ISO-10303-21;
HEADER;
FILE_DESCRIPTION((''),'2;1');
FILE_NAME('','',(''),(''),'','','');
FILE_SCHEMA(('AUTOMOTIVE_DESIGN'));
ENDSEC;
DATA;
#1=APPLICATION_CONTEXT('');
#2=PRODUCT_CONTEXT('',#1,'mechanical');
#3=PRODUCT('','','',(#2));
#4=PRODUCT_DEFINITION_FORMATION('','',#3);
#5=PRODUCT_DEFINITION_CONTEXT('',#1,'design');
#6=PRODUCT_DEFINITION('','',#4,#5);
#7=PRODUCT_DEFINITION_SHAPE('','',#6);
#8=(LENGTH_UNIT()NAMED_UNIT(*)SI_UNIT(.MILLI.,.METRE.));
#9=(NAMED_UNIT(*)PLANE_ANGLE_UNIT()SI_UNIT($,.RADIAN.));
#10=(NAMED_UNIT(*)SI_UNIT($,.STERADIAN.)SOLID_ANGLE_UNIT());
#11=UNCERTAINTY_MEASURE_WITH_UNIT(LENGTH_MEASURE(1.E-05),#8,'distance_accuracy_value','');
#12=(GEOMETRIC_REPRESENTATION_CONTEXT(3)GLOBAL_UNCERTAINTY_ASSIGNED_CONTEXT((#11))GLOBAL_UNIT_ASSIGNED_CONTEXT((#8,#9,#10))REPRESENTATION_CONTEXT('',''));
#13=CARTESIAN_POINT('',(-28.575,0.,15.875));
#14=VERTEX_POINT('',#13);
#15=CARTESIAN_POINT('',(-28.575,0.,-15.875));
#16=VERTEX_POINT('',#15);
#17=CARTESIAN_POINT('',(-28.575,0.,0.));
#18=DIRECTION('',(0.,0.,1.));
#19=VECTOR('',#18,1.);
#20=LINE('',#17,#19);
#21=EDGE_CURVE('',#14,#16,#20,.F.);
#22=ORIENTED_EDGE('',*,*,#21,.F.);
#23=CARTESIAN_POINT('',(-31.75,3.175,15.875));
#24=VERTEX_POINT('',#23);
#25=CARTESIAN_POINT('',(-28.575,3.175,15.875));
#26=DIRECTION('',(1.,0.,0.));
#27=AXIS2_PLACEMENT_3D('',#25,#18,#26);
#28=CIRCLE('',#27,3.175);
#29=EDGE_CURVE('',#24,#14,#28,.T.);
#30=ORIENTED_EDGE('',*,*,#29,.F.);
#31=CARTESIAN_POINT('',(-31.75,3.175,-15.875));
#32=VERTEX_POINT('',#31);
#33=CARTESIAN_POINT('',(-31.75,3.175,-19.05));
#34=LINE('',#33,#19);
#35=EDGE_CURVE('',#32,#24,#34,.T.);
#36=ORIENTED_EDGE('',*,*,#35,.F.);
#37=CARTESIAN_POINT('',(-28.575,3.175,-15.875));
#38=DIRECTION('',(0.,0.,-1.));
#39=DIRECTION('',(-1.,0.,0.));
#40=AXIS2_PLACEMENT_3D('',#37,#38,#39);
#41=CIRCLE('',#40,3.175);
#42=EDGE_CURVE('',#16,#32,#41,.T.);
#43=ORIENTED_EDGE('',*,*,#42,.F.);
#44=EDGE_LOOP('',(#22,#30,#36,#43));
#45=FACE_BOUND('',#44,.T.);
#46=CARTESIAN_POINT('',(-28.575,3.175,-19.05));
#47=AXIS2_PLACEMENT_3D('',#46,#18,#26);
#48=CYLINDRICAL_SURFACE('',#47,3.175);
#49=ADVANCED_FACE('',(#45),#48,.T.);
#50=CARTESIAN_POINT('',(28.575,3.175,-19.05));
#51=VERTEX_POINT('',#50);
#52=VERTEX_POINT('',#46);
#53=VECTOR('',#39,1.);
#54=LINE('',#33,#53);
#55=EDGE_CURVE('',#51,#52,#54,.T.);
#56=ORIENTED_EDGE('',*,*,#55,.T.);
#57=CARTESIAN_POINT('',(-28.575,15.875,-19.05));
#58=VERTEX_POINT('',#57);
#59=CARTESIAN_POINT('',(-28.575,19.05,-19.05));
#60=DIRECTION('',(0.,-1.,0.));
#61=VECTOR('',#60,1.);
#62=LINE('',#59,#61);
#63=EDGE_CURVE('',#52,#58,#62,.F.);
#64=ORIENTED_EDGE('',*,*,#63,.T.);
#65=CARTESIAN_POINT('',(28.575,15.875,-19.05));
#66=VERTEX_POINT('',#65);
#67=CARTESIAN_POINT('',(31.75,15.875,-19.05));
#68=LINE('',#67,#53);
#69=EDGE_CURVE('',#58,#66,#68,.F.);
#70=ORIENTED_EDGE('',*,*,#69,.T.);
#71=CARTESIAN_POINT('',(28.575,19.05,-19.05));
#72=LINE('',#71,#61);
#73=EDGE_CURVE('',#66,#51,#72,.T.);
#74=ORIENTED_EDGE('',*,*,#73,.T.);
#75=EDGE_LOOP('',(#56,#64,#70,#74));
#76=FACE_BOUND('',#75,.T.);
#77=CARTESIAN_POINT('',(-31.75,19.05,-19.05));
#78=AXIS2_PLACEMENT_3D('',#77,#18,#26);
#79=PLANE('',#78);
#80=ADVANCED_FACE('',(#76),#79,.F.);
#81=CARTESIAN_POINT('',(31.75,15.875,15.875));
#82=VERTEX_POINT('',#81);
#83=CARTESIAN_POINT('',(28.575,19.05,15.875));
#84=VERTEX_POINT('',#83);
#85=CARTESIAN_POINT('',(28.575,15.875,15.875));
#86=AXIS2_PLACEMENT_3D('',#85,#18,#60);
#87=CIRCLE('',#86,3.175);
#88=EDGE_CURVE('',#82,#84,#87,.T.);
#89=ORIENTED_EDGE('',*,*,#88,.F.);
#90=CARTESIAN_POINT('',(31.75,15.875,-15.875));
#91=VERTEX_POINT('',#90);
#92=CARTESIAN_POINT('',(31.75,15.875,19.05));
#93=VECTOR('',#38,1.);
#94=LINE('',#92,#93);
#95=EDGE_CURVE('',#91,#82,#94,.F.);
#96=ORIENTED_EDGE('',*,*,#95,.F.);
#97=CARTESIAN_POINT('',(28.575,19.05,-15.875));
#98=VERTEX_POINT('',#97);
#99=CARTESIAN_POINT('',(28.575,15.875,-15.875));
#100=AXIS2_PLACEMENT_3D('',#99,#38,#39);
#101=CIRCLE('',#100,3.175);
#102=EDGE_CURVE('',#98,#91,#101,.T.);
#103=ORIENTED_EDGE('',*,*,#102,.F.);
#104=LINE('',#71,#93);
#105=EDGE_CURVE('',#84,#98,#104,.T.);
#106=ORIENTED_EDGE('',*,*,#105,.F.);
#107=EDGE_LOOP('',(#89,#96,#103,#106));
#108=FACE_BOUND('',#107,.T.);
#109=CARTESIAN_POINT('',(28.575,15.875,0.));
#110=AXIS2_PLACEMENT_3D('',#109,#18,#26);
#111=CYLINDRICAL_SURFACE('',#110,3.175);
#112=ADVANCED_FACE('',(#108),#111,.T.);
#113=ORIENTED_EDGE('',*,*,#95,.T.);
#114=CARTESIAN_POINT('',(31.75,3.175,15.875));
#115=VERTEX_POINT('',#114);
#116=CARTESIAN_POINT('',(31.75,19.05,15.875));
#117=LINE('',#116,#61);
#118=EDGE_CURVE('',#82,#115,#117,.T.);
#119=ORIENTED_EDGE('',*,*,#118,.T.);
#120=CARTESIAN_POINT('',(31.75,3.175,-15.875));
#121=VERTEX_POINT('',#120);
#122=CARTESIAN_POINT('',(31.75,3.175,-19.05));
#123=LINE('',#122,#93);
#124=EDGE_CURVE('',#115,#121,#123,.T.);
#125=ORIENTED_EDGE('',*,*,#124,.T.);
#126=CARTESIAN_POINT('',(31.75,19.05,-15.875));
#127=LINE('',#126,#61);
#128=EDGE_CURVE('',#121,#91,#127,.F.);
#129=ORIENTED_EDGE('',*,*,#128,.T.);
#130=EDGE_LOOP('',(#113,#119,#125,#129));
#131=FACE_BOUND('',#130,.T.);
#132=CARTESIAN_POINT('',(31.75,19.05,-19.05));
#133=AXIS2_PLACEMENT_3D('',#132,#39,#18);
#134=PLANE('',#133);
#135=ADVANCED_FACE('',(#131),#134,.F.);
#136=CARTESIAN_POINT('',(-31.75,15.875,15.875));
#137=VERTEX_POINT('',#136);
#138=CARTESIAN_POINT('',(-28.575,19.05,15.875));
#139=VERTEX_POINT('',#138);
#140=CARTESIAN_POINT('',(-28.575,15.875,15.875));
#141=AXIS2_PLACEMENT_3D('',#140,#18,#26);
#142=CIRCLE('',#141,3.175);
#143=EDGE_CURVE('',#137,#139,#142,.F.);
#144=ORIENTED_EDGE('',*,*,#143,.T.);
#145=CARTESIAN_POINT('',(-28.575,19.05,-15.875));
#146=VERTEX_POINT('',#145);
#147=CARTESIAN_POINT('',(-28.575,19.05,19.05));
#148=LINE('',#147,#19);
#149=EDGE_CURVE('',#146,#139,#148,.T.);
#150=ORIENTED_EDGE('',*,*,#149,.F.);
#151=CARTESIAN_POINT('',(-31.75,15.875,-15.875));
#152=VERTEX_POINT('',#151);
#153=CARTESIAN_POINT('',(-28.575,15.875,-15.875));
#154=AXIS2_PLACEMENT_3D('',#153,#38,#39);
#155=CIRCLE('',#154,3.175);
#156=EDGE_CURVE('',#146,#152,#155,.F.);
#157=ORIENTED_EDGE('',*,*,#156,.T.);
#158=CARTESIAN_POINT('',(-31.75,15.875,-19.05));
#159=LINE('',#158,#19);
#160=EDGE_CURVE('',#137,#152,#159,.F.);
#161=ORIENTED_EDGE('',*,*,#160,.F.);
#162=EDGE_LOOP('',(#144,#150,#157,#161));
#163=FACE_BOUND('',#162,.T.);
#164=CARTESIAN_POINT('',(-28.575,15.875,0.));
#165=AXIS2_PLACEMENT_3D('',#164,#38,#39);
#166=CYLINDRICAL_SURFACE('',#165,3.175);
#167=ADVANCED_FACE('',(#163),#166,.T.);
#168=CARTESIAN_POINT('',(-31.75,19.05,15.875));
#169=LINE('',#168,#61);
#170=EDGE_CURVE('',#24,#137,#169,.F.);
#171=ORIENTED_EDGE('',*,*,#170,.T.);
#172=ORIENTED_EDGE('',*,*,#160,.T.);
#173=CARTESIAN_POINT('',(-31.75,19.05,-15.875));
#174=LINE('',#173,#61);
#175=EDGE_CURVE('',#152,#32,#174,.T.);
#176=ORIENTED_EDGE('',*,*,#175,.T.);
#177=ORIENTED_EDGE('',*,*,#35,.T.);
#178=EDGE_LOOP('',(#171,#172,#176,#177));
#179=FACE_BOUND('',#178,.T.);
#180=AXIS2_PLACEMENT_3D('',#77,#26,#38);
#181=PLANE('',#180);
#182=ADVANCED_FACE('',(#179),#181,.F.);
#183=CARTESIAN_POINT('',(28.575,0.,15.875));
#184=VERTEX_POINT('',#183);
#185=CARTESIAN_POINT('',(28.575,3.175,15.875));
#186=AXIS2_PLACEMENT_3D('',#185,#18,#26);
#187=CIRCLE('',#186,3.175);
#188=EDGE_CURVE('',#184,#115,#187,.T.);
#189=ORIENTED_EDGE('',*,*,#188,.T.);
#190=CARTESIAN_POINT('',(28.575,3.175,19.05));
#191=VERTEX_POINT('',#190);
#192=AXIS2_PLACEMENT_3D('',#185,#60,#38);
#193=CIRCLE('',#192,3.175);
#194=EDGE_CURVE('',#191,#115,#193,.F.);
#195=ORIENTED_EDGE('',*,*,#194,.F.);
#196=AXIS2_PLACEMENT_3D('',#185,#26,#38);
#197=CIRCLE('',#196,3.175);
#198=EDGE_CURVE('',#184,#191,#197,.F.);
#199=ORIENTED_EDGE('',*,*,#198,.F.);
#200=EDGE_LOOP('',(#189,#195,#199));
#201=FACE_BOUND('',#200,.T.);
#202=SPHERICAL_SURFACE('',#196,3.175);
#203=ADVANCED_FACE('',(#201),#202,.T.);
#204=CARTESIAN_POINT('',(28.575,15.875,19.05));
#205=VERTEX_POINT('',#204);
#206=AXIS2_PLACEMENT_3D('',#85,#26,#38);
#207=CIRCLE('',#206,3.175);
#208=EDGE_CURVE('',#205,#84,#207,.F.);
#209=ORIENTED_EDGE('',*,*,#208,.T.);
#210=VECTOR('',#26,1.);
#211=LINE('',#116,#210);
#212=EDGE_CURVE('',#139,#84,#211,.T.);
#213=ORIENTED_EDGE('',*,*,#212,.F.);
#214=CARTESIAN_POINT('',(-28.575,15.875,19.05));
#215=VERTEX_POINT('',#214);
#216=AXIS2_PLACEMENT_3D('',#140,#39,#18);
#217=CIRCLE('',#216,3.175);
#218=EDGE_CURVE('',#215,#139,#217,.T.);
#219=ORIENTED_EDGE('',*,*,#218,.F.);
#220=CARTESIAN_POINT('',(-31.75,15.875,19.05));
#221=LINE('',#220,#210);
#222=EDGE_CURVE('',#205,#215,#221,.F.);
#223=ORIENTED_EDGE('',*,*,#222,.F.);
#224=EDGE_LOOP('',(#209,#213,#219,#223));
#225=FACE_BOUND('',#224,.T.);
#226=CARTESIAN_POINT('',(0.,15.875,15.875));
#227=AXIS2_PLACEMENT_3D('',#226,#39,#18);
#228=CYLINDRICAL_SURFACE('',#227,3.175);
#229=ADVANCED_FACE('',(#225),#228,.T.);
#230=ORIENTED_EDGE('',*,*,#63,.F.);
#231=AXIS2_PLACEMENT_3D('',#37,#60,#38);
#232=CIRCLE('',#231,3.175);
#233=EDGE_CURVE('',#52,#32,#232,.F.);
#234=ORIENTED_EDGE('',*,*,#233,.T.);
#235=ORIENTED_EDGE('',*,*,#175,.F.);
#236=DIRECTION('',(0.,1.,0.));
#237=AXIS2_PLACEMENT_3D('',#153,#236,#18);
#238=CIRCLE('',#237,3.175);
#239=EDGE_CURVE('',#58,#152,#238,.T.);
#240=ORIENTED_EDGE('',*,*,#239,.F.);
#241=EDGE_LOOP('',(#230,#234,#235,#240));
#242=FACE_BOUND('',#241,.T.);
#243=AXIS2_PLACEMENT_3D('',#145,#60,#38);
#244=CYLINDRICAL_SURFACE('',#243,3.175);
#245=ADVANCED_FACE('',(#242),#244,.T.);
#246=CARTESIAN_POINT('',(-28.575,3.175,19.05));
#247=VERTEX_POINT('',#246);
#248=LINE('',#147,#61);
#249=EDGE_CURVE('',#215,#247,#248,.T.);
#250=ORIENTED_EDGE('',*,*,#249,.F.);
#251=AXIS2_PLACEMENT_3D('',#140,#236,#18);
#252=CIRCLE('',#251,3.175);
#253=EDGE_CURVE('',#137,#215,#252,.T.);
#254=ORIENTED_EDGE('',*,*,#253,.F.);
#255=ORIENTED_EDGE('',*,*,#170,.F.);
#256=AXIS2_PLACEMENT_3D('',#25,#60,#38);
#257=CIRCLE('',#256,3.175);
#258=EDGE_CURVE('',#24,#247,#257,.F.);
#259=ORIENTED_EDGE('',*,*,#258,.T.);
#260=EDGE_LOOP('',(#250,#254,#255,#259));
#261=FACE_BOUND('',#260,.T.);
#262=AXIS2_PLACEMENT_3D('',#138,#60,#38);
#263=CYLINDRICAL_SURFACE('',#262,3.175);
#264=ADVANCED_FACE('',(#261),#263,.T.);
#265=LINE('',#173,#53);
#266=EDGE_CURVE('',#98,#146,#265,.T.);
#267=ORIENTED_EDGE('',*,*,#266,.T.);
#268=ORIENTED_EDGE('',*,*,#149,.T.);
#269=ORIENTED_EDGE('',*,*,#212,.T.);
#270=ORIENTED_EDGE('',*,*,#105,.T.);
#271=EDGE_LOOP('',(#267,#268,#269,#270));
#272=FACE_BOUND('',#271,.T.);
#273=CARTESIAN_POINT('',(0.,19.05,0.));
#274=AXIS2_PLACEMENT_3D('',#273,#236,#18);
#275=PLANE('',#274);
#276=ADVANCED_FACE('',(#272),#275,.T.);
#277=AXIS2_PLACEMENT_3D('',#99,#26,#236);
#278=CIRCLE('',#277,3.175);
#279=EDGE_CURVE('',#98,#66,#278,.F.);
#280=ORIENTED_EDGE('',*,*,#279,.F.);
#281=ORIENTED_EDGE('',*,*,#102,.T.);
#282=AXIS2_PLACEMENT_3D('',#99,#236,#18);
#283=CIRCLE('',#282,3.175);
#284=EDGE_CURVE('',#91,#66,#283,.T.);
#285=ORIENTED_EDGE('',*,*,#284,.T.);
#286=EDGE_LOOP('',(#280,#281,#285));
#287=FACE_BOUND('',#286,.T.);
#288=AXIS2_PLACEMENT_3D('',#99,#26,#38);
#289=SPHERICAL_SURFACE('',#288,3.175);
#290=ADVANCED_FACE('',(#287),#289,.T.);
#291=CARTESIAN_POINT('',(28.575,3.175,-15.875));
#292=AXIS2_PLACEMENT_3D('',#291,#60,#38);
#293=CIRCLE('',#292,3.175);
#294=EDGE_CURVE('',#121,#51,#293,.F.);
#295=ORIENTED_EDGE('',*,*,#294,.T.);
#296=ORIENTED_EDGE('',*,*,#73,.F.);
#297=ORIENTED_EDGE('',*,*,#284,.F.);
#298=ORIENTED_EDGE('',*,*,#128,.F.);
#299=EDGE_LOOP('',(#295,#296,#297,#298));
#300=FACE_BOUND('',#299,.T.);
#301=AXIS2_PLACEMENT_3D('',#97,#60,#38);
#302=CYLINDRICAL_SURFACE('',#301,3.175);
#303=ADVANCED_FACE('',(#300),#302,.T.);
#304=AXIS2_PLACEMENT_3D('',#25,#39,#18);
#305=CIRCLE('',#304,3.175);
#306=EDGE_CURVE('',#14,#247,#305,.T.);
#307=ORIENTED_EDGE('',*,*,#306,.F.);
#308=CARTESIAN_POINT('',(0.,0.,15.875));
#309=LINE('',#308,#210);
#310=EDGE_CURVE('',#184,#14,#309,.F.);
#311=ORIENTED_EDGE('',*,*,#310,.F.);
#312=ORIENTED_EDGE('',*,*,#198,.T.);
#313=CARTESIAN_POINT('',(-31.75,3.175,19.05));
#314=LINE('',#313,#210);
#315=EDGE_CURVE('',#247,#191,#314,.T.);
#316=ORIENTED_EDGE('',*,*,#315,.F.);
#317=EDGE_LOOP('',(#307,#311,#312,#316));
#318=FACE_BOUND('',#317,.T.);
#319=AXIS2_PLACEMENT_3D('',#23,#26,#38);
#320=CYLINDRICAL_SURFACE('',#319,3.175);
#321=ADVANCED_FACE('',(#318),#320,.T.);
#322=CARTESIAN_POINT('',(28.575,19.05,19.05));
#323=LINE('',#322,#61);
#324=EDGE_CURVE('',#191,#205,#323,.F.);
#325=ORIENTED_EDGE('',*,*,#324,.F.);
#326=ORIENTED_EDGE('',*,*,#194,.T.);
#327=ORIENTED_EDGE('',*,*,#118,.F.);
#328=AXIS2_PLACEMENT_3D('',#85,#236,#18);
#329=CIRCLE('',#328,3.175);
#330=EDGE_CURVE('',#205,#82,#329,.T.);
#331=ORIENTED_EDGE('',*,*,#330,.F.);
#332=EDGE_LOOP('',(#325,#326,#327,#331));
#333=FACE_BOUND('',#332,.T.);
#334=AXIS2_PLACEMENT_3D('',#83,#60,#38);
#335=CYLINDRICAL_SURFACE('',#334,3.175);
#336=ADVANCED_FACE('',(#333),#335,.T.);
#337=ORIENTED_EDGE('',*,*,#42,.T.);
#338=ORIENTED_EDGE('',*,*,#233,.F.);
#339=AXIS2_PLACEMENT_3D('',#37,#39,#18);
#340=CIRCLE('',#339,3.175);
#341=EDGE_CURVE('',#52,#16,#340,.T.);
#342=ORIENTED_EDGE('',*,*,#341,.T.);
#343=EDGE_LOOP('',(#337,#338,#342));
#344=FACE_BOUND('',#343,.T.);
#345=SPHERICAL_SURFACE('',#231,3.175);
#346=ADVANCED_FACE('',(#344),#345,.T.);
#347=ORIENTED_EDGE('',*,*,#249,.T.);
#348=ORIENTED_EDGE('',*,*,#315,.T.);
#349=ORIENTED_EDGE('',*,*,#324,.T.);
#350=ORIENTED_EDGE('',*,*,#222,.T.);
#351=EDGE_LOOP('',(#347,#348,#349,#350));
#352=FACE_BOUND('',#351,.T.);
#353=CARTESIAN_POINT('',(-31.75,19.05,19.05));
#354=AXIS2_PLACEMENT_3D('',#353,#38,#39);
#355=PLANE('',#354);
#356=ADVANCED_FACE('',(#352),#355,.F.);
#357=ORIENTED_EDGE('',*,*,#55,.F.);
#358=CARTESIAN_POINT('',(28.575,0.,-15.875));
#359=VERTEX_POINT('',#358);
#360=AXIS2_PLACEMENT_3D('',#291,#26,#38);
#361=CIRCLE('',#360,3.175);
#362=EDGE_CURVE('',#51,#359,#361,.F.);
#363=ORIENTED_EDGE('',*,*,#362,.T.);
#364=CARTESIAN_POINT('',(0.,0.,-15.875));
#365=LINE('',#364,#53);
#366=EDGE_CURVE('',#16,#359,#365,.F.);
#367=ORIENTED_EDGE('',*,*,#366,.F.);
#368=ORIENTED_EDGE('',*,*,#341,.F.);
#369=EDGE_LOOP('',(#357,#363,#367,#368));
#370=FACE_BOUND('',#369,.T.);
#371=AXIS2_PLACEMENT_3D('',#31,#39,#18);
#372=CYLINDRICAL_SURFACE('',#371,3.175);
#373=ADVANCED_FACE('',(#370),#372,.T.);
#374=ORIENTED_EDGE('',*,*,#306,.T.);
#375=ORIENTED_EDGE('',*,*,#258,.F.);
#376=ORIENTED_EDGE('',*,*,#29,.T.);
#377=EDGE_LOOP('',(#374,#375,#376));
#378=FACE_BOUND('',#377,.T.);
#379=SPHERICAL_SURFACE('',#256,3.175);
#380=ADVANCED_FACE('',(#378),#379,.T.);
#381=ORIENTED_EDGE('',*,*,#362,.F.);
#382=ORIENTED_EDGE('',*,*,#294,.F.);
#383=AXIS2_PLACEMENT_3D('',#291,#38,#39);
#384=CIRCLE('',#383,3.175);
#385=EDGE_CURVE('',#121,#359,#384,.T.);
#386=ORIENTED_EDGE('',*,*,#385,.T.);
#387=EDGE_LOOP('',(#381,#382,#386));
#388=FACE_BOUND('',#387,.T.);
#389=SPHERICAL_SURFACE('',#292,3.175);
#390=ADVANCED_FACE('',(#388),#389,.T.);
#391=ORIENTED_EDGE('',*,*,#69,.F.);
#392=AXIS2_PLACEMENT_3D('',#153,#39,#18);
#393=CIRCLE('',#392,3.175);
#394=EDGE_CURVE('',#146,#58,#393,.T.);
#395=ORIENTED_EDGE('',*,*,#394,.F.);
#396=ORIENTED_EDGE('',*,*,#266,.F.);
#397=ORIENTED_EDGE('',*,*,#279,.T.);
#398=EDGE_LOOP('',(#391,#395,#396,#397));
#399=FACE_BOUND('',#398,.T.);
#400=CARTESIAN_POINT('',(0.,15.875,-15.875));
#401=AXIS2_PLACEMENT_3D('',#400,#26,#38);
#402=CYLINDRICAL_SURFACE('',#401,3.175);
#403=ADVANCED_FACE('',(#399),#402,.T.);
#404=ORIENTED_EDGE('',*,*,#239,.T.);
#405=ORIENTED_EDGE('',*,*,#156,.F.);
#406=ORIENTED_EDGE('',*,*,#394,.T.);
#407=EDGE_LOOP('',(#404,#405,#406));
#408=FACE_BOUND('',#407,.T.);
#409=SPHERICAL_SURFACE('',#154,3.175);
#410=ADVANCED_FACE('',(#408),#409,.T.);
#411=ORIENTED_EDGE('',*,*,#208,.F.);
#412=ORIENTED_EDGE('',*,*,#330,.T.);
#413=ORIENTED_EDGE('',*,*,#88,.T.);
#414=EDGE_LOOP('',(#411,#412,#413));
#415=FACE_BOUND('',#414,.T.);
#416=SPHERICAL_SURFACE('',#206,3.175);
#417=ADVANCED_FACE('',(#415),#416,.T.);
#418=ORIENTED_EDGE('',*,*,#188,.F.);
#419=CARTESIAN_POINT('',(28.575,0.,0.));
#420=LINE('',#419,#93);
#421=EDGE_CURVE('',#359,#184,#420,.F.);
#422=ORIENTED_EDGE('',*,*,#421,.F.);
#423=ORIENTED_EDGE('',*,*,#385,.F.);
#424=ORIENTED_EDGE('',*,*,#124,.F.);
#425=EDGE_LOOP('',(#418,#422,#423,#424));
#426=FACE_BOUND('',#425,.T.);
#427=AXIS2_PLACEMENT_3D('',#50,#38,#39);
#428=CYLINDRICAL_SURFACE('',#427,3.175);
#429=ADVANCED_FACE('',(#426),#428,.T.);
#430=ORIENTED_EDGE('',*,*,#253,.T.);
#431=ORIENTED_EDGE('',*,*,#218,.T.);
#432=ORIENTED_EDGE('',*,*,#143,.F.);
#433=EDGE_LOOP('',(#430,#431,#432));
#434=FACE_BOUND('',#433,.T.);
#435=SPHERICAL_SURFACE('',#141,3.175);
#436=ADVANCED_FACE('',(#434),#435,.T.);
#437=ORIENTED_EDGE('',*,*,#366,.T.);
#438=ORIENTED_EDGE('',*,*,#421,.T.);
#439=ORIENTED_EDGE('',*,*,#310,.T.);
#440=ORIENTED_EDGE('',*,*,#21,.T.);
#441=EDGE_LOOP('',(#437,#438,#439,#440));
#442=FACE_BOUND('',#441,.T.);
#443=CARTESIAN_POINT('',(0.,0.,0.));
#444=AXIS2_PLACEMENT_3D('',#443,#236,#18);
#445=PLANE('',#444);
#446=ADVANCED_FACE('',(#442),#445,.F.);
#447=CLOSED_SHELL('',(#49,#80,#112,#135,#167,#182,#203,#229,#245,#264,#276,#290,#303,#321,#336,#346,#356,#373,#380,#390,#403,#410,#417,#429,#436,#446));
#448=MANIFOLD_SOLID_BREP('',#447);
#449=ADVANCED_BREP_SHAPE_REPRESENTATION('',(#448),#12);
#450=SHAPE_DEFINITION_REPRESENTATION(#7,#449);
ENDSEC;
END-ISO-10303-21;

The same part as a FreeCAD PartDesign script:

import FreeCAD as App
import Part
import Sketcher

V = App.Vector
Q = App.Units.Quantity


def add_polygon(sketch, points):
    """Adds a closed chain of lines whose ends are joined by coincident constraints."""
    first, n = sketch.GeometryCount, len(points)
    for a, b in zip(points, points[1:] + points[:1]):
        sketch.addGeometry(Part.LineSegment(App.Vector(*a, 0), App.Vector(*b, 0)), False)
    for i in range(n):
        sketch.addConstraint(Sketcher.Constraint("Coincident", first + i, 2, first + (i + 1) % n, 1))

doc = App.newDocument("Part")
body = doc.addObject("PartDesign::Body", "Body")

sketch1 = body.newObject("Sketcher::SketchObject", "Sketch")
sketch1.AttachmentSupport = (doc.getObject("XZ_Plane"), [""])
sketch1.MapMode = "FlatFace"
add_polygon(sketch1, [(-32, -19), (-32, 19), (32, 19), (32, -19)])
sketch1.addConstraint([
    Sketcher.Constraint("Vertical", 0),
    Sketcher.Constraint("Horizontal", 1),
    Sketcher.Constraint("Vertical", 2),
    Sketcher.Constraint("Horizontal", 3),
    Sketcher.Constraint("Symmetric", 0, 2, 2, 2, -1, 1),
    Sketcher.Constraint("DistanceX", 1, 1, 1, 2, Q("2.5 in")),
    Sketcher.Constraint("DistanceY", 0, 1, 0, 2, Q("1.5 in")),
])
pad1 = body.newObject("PartDesign::Pad", "Pad")
pad1.Profile = sketch1
pad1.Length = Q("0.75 in")
pad1.Reversed = True
doc.recompute()

fillet = body.newObject("PartDesign::Fillet", "Fillet")
fillet.Base = (pad1, ["Edge1"])
fillet.UseAllEdges = True
fillet.Radius = Q("0.125 in")

doc.recompute()
